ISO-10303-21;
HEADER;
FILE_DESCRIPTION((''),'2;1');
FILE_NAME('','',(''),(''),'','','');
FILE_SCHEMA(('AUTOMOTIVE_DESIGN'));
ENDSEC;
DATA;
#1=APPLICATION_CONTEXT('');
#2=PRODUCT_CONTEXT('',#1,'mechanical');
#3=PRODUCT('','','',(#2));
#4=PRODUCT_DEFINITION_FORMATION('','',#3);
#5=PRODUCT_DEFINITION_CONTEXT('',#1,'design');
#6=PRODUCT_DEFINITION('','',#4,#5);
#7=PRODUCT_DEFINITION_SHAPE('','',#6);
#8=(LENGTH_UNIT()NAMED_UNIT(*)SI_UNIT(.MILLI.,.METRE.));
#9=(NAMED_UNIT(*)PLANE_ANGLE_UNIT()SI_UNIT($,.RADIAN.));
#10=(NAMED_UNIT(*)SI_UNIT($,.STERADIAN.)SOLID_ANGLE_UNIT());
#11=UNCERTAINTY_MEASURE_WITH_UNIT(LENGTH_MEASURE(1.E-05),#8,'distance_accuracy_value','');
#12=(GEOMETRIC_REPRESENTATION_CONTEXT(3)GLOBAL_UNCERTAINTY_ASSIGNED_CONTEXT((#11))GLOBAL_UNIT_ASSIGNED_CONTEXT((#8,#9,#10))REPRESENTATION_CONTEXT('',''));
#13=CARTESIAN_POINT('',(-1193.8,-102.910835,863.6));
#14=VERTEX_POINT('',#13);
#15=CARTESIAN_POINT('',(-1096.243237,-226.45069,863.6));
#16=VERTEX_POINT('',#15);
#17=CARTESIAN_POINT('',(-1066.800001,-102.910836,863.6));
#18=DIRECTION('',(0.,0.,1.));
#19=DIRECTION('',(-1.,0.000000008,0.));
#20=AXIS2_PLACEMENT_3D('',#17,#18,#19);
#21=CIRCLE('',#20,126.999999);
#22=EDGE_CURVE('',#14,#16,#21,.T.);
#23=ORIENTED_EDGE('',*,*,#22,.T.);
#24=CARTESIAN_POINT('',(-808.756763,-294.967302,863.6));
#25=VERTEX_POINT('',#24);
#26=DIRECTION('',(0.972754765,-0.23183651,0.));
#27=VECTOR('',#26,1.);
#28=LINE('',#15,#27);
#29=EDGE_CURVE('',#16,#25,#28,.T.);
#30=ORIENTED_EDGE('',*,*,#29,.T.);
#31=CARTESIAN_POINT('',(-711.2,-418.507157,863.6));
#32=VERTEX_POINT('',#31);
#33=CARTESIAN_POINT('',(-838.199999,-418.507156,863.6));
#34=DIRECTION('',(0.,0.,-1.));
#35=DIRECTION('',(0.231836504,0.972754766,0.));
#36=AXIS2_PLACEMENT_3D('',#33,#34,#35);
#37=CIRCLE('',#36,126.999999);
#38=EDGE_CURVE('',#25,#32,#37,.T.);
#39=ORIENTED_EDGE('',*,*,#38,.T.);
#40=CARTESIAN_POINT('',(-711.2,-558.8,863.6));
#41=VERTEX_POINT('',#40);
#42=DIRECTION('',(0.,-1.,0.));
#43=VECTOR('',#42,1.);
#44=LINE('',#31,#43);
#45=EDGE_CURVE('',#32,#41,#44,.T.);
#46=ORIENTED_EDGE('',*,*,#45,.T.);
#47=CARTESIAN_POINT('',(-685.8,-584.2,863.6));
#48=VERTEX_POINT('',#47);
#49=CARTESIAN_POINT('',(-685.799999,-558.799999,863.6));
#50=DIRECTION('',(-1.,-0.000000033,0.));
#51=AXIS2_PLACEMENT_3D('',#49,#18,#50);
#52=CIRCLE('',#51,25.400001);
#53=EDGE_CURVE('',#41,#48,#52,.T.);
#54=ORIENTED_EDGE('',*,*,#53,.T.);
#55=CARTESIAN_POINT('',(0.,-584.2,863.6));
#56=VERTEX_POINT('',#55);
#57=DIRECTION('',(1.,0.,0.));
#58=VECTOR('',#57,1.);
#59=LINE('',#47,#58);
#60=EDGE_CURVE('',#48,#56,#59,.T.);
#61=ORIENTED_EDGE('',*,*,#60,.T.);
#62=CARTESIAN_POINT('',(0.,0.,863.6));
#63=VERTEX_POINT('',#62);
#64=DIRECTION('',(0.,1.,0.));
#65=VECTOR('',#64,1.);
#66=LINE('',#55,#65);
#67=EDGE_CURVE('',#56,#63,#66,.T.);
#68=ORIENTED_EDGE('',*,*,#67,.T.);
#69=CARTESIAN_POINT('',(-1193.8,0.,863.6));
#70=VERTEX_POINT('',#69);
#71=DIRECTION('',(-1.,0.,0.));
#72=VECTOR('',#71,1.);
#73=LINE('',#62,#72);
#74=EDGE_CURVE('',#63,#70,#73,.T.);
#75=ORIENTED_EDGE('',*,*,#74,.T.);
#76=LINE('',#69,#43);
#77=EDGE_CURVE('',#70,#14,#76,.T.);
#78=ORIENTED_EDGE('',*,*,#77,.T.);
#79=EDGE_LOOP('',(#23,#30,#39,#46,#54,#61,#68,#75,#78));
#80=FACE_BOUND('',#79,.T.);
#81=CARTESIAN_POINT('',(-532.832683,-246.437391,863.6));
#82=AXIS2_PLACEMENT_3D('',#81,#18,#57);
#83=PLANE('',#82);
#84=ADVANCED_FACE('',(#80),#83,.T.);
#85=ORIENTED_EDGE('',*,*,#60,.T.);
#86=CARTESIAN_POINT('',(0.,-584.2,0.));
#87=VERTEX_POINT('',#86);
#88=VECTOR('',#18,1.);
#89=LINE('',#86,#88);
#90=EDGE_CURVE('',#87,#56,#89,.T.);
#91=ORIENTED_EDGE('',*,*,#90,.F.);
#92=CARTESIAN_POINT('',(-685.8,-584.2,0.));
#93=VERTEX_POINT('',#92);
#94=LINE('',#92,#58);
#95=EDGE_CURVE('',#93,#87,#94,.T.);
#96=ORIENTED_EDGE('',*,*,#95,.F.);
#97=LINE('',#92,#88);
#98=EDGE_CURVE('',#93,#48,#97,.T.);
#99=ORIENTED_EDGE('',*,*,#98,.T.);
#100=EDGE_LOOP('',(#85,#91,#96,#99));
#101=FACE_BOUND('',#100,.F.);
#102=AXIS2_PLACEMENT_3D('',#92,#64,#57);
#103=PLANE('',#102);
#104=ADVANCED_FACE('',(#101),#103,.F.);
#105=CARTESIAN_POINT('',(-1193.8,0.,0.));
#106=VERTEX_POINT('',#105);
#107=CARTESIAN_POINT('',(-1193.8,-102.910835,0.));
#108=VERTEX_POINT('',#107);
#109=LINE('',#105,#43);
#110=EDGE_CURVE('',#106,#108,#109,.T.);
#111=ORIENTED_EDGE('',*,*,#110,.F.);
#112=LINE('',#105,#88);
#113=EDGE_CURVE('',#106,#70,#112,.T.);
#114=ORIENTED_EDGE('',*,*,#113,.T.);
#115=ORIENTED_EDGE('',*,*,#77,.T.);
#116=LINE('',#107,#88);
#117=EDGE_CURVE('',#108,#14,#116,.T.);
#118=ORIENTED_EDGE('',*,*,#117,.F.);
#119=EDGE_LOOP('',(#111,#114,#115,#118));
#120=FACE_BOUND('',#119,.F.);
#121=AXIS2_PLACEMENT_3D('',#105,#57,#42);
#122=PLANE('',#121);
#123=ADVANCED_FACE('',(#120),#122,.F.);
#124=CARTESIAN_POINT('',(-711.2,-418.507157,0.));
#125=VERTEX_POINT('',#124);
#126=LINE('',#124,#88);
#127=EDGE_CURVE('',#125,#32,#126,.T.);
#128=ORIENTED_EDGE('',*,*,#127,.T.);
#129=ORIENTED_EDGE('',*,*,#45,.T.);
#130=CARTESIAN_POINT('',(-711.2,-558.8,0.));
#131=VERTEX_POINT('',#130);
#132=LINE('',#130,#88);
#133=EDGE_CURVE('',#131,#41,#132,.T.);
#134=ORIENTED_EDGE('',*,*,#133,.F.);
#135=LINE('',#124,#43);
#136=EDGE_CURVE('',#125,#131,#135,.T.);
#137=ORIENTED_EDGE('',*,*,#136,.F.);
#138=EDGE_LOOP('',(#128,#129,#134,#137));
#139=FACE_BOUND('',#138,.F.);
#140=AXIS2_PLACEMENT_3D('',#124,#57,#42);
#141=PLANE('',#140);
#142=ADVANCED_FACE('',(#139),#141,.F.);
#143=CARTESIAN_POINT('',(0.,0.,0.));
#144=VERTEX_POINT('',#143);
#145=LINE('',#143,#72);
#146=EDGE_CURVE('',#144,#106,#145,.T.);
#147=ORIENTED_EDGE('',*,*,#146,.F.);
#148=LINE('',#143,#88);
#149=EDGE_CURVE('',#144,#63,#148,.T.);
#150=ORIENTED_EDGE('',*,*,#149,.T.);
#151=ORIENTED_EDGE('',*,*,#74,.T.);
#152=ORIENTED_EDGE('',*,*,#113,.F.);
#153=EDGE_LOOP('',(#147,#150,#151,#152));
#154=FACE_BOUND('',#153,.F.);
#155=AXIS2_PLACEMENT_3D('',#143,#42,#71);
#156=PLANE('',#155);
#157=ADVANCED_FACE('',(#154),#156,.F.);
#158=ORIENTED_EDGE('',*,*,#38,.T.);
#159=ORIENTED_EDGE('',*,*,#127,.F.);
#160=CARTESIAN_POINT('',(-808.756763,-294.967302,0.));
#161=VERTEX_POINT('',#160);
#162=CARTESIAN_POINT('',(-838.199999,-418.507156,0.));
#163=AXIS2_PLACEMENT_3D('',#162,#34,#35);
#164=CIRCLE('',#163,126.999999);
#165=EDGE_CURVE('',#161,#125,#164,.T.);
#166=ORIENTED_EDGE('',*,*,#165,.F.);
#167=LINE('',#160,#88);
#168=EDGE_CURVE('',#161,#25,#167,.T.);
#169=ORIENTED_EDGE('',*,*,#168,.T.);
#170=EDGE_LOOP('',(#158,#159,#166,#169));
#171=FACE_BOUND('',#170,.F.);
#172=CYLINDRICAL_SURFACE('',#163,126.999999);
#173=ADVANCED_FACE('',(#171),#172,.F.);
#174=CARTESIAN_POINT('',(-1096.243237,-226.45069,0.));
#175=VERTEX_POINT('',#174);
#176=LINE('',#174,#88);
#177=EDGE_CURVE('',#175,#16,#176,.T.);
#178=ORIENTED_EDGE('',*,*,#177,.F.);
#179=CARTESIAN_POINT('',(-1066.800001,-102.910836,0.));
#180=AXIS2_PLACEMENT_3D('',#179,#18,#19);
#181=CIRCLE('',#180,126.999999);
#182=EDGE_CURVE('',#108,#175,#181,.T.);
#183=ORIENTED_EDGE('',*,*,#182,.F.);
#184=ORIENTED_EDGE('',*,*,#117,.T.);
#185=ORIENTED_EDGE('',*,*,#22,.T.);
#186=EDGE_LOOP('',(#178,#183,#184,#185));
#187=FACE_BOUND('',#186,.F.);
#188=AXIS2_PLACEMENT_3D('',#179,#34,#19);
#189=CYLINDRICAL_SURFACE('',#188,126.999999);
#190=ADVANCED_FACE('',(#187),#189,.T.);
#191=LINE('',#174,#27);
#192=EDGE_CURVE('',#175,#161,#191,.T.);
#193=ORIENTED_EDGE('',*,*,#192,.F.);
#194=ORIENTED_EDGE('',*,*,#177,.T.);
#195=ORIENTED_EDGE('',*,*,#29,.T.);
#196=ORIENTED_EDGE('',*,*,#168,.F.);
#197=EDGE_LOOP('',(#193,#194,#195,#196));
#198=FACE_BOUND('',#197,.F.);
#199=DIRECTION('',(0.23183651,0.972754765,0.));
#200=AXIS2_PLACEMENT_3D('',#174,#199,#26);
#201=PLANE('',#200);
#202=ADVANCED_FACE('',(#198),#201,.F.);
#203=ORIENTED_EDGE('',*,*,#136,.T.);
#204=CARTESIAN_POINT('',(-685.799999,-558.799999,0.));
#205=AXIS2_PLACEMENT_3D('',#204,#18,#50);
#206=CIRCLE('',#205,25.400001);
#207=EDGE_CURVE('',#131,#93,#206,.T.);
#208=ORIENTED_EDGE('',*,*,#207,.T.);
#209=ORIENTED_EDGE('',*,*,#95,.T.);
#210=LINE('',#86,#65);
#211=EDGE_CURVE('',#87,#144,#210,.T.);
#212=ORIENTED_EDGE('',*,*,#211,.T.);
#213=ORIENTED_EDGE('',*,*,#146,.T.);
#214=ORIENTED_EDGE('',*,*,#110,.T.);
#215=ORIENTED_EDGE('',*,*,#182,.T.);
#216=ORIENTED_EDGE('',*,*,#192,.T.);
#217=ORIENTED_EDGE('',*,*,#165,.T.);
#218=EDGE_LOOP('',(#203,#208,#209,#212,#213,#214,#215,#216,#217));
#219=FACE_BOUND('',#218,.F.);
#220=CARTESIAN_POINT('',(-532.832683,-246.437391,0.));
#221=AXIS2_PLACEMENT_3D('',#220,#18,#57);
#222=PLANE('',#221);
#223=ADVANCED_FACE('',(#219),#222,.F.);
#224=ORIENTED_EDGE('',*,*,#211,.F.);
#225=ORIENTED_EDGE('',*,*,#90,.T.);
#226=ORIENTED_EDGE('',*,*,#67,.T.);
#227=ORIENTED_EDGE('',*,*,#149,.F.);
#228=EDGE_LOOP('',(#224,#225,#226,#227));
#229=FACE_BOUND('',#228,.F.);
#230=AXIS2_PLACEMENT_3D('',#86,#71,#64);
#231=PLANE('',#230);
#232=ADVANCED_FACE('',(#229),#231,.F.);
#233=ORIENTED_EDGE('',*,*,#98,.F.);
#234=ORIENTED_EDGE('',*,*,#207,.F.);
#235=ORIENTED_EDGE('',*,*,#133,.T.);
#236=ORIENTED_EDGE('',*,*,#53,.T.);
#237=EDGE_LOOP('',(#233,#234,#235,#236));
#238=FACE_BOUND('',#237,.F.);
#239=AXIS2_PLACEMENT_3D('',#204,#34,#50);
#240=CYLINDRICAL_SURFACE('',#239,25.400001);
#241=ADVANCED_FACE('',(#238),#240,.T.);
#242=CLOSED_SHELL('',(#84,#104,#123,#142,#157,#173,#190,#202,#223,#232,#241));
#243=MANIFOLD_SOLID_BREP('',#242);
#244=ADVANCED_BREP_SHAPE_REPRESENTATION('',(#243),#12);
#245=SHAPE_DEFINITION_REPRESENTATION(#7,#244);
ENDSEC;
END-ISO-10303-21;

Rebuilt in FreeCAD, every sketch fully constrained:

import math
import FreeCAD as App
import Part
import Sketcher

V = App.Vector
Q = App.Units.Quantity

doc = App.newDocument("Part")
body = doc.addObject("PartDesign::Body", "Body")

# Sketch on XY plane
sketch1 = doc.addObject("Sketcher::SketchObject", "Sketch")
body.addObject(sketch1)
sketch1.AttachmentSupport = (doc.XY_Plane, [""])
sketch1.MapMode = "FlatFace"
sketch1.addGeometry(Part.LineSegment(V(0, -584, 0), V(0, 0, 0)), False)
sketch1.addGeometry(Part.LineSegment(V(0, 0, 0), V(-1194, 0, 0)), False)
sketch1.addGeometry(Part.LineSegment(V(-1194, 0, 0), V(-1194, -103, 0)), False)
sketch1.addGeometry(Part.ArcOfCircle(Part.Circle(V(-1067, -103, 0), V(0, 0, 1), 127), math.radians(180), math.radians(257)), False)
sketch1.addGeometry(Part.LineSegment(V(-1096, -226, 0), V(-809, -295, 0)), False)
sketch1.addGeometry(Part.ArcOfCircle(Part.Circle(V(-838, -419, 0), V(0, 0, 1), 127), math.radians(0), math.radians(77)), False)
sketch1.addGeometry(Part.LineSegment(V(-711, -419, 0), V(-711, -559, 0)), False)
sketch1.addGeometry(Part.ArcOfCircle(Part.Circle(V(-686, -559, 0), V(0, 0, 1), 25), math.radians(-180), math.radians(-90)), False)
sketch1.addGeometry(Part.LineSegment(V(-686, -584, 0), V(0, -584, 0)), False)
sketch1.addConstraint(Sketcher.Constraint("Coincident", 0, 2, 1, 1))
sketch1.addConstraint(Sketcher.Constraint("Coincident", 1, 2, 2, 1))
sketch1.addConstraint(Sketcher.Constraint("Tangent", 2, 2, 3, 1))
sketch1.addConstraint(Sketcher.Constraint("Tangent", 3, 2, 4, 1))
sketch1.addConstraint(Sketcher.Constraint("Tangent", 4, 2, 5, 2))
sketch1.addConstraint(Sketcher.Constraint("Tangent", 5, 1, 6, 1))
sketch1.addConstraint(Sketcher.Constraint("Tangent", 6, 2, 7, 1))
sketch1.addConstraint(Sketcher.Constraint("Tangent", 7, 2, 8, 1))
sketch1.addConstraint(Sketcher.Constraint("Coincident", 8, 2, 0, 1))
sketch1.addConstraint(Sketcher.Constraint("Vertical", 0))
sketch1.addConstraint(Sketcher.Constraint("Horizontal", 1))
sketch1.addConstraint(Sketcher.Constraint("Vertical", 2))
sketch1.addConstraint(Sketcher.Constraint("Vertical", 6))
sketch1.addConstraint(Sketcher.Constraint("Horizontal", 8))
sketch1.addConstraint(Sketcher.Constraint("Coincident", 0, 2, -1, 1))
sketch1.addConstraint(Sketcher.Constraint("Equal", 3, 5))
sketch1.addConstraint(Sketcher.Constraint("Radius", 3, Q("4.9999999 in")))
sketch1.addConstraint(Sketcher.Constraint("Radius", 7, Q("1 in")))
sketch1.addConstraint(Sketcher.Constraint("DistanceX", 1, 2, 1, 1, Q("47 in")))
sketch1.addConstraint(Sketcher.Constraint("DistanceX", 8, 1, 8, 2, Q("27 in")))
sketch1.addConstraint(Sketcher.Constraint("DistanceY", 0, 1, 0, 2, Q("23 in")))
sketch1.addConstraint(Sketcher.Constraint("DistanceY", 4, 2, -1, 1, 294.967302))
sketch1.addConstraint(Sketcher.Constraint("Distance", 4, 295.53849))
pad1 = doc.addObject("PartDesign::Pad", "Pad")
body.addObject(pad1)
pad1.Profile = sketch1
pad1.Length = Q("34 in")

doc.recompute()
